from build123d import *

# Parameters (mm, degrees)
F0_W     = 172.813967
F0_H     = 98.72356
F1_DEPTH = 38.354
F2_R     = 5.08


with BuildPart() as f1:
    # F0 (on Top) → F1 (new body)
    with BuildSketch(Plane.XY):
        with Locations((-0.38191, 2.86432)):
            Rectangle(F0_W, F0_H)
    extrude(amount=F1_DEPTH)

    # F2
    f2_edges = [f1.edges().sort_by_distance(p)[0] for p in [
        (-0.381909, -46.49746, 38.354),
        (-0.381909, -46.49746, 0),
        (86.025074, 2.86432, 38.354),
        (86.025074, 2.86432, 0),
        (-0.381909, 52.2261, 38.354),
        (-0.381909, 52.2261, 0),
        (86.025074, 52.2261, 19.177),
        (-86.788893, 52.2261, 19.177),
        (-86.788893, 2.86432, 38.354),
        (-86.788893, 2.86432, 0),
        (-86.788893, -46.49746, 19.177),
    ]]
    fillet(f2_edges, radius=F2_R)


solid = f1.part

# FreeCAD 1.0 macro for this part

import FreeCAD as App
import Part
import Sketcher
from FreeCAD import Vector
Q = App.Units.Quantity


def edges_at(feature, points):
    """Names of the edges that pass closest to the given points."""
    edges = feature.Shape.Edges
    near = lambda p: min(range(len(edges)), key=lambda i: edges[i].distToShape(Part.Vertex(*p))[0])
    return sorted({f"Edge{near(p) + 1}" for p in points})


def add_polygon(sketch, points):
    """Adds a closed chain of lines whose ends are joined by coincident constraints."""
    first, n = sketch.GeometryCount, len(points)
    for a, b in zip(points, points[1:] + points[:1]):
        sketch.addGeometry(Part.LineSegment(App.Vector(*a, 0), App.Vector(*b, 0)), False)
    for i in range(n):
        sketch.addConstraint(Sketcher.Constraint("Coincident", first + i, 2, first + (i + 1) % n, 1))

doc = App.newDocument("Part")
body = doc.addObject("PartDesign::Body", "Body")

# Sketch on XY plane
sketch1 = body.newObject("Sketcher::SketchObject", "Sketch")
sketch1.AttachmentSupport = (doc.getObject("XY_Plane"), [""])
sketch1.MapMode = "FlatFace"
add_polygon(sketch1, [(-87, 52), (-87, -46), (86, -46), (86, 52)])  # lines 0-3
sketch1.addConstraint(Sketcher.Constraint("Vertical", 0))
sketch1.addConstraint(Sketcher.Constraint("Horizontal", 1))
sketch1.addConstraint(Sketcher.Constraint("Vertical", 2))
sketch1.addConstraint(Sketcher.Constraint("Horizontal", 3))
sketch1.addConstraint(Sketcher.Constraint("DistanceY", 0, 2, 0, 1, 98.72356))
sketch1.addConstraint(Sketcher.Constraint("DistanceY", -1, 1, 2, 2, 52.2261))
sketch1.addConstraint(Sketcher.Constraint("DistanceX", 1, 1, 1, 2, 172.813967))
sketch1.addConstraint(Sketcher.Constraint("DistanceX", 0, 2, -1, 1, 86.788894))
pad1 = body.newObject("PartDesign::Pad", "Pad")
pad1.Profile = sketch1
pad1.Length = Q("1.51 in")
doc.recompute()

fillet = body.newObject("PartDesign::Fillet", "Fillet")
fillet.Base = (pad1, edges_at(pad1, [
    (-0.382, -46.497, 38.354),
    (-0.382, -46.497, 0),
    (86.025, 2.864, 38.354),
    (86.025, 2.864, 0),
    (-0.382, 52.226, 38.354),
    (-0.382, 52.226, 0),
    (86.025, 52.226, 19.177),
    (-86.789, 52.226, 19.177),
    (-86.789, 2.864, 38.354),
    (-86.789, 2.864, 0),
    (-86.789, -46.497, 19.177),
]))
fillet.Radius = Q("0.2 in")

doc.recompute()
